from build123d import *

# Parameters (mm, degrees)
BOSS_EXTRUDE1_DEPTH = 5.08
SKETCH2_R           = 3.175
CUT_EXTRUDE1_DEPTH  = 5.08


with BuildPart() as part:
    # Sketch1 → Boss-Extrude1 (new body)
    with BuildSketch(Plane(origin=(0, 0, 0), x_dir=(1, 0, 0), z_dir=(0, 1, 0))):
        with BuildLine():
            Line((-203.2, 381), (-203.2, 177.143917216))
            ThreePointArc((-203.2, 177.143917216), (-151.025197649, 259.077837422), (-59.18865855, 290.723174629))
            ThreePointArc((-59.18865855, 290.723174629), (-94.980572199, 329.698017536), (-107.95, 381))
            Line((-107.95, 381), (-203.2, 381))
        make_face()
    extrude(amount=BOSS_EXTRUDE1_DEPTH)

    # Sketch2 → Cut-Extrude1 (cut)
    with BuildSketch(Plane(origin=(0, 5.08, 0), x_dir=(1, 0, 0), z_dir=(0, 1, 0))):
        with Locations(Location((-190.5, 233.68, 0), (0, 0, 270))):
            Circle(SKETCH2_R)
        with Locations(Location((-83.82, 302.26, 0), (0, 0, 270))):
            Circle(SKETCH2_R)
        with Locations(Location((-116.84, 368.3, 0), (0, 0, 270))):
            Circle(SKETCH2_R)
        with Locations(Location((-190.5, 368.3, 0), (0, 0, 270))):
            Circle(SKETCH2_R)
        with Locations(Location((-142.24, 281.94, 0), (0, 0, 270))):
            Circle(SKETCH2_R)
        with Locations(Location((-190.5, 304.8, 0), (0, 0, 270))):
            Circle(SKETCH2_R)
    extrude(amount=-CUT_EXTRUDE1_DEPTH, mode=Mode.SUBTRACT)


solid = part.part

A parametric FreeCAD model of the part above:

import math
import FreeCAD as App
import Part
import Sketcher
from FreeCAD import Vector
Q = App.Units.Quantity

doc = App.newDocument("Part")
body = doc.addObject("PartDesign::Body", "Body")

# Sketch on XZ plane
sketch1 = body.newObject("Sketcher::SketchObject", "Sketch")
sketch1.AttachmentSupport = (doc.getObject("XZ_Plane"), [""])
sketch1.MapMode = "FlatFace"
sketch1.addGeometry([
    Part.LineSegment(Vector(-203.2, -381, 0), Vector(-203.2, -177.143917, 0)),
    Part.ArcOfCircle(Part.Circle(Vector(-59.795575, -143.404425, 0), Vector(0, 0, 1), 147.32), math.radians(-166.760512), math.radians(-89.763957)),
    Part.ArcOfCircle(Part.Circle(Vector(0, -381, 0), Vector(0, 0, 1), 107.95), math.radians(123.250257), math.radians(180)),
    Part.LineSegment(Vector(-107.95, -381, 0), Vector(-203.2, -381, 0)),
], False)
sketch1.addConstraint([
    Sketcher.Constraint("Coincident", 0, 2, 1, 1),
    Sketcher.Constraint("Coincident", 1, 2, 2, 1),
    Sketcher.Constraint("Coincident", 2, 2, 3, 1),
    Sketcher.Constraint("Coincident", 3, 2, 0, 1),
    Sketcher.Constraint("Vertical", 0),
    Sketcher.Constraint("Horizontal", 3),
    Sketcher.Constraint("PointOnObject", 2, 3, -2),
    Sketcher.Constraint("Radius", 1, Q("5.8 in")),
    Sketcher.Constraint("Radius", 2, Q("4.25 in")),
    Sketcher.Constraint("DistanceY", 2, 3, -1, 1, Q("15 in")),
    Sketcher.Constraint("DistanceX", 0, 2, -1, 1, Q("8 in")),
    Sketcher.Constraint("DistanceY", 2, 2, -1, 1, Q("15 in")),
    Sketcher.Constraint("DistanceY", 0, 1, 0, 2, 203.856083),
    Sketcher.Constraint("DistanceX", 1, 2, -1, 1, 59.188659),
])
pad1 = body.newObject("PartDesign::Pad", "Pad")
pad1.Profile = sketch1
pad1.Length = Q("0.2 in")
pad1.Reversed = True

# Sketch on XZ plane
sketch2 = body.newObject("Sketcher::SketchObject", "Sketch001")
sketch2.AttachmentSupport = (doc.getObject("XZ_Plane"), [""])
sketch2.MapMode = "FlatFace"
sketch2.AttachmentOffset = App.Placement(Vector(0, 0, -0.2 * 25.4), App.Rotation())
sketch2.addGeometry([
    Part.Circle(Vector(-190.5, -233.68, 0), Vector(0, 0, 1), 3.175),  # 0
    Part.Circle(Vector(-83.82, -302.26, 0), Vector(0, 0, 1), 3.175),  # 1
    Part.Circle(Vector(-116.84, -368.3, 0), Vector(0, 0, 1), 3.175),  # 2
    Part.Circle(Vector(-190.5, -368.3, 0), Vector(0, 0, 1), 3.175),  # 3
    Part.Circle(Vector(-142.24, -281.94, 0), Vector(0, 0, 1), 3.175),  # 4
    Part.Circle(Vector(-190.5, -304.8, 0), Vector(0, 0, 1), 3.175),  # 5
], False)
sketch2.addConstraint([
    Sketcher.Constraint("Equal", 0, 1),
    Sketcher.Constraint("Equal", 1, 2),
    Sketcher.Constraint("Equal", 2, 3),
    Sketcher.Constraint("Equal", 3, 4),
    Sketcher.Constraint("Equal", 4, 5),
    Sketcher.Constraint("Horizontal", 2, 3, 3, 3),
    Sketcher.Constraint("Vertical", 0, 3, 3, 3),
    Sketcher.Constraint("Vertical", 3, 3, 5, 3),
    Sketcher.Constraint("Diameter", 0, Q("0.25 in")),
    Sketcher.Constraint("DistanceY", 5, 3, -1, 1, Q("12 in")),
    Sketcher.Constraint("DistanceX", 4, 3, 2, 3, Q("1 in")),
    Sketcher.Constraint("DistanceX", 0, 3, -1, 1, Q("7.5 in")),
    Sketcher.Constraint("DistanceY", 0, 3, -1, 1, Q("9.2 in")),
    Sketcher.Constraint("DistanceX", 1, 3, -1, 1, Q("3.3 in")),
    Sketcher.Constraint("DistanceY", 1, 3, -1, 1, Q("11.9 in")),
    Sketcher.Constraint("DistanceX", 2, 3, -1, 1, Q("4.6 in")),
    Sketcher.Constraint("DistanceY", 2, 3, -1, 1, Q("14.5 in")),
    Sketcher.Constraint("DistanceY", 4, 3, -1, 1, Q("11.1 in")),
])
pocket1 = body.newObject("PartDesign::Pocket", "Pocket")
pocket1.Profile = sketch2
pocket1.Length = Q("0.2 in")
pocket1.Reversed = True

doc.recompute()
